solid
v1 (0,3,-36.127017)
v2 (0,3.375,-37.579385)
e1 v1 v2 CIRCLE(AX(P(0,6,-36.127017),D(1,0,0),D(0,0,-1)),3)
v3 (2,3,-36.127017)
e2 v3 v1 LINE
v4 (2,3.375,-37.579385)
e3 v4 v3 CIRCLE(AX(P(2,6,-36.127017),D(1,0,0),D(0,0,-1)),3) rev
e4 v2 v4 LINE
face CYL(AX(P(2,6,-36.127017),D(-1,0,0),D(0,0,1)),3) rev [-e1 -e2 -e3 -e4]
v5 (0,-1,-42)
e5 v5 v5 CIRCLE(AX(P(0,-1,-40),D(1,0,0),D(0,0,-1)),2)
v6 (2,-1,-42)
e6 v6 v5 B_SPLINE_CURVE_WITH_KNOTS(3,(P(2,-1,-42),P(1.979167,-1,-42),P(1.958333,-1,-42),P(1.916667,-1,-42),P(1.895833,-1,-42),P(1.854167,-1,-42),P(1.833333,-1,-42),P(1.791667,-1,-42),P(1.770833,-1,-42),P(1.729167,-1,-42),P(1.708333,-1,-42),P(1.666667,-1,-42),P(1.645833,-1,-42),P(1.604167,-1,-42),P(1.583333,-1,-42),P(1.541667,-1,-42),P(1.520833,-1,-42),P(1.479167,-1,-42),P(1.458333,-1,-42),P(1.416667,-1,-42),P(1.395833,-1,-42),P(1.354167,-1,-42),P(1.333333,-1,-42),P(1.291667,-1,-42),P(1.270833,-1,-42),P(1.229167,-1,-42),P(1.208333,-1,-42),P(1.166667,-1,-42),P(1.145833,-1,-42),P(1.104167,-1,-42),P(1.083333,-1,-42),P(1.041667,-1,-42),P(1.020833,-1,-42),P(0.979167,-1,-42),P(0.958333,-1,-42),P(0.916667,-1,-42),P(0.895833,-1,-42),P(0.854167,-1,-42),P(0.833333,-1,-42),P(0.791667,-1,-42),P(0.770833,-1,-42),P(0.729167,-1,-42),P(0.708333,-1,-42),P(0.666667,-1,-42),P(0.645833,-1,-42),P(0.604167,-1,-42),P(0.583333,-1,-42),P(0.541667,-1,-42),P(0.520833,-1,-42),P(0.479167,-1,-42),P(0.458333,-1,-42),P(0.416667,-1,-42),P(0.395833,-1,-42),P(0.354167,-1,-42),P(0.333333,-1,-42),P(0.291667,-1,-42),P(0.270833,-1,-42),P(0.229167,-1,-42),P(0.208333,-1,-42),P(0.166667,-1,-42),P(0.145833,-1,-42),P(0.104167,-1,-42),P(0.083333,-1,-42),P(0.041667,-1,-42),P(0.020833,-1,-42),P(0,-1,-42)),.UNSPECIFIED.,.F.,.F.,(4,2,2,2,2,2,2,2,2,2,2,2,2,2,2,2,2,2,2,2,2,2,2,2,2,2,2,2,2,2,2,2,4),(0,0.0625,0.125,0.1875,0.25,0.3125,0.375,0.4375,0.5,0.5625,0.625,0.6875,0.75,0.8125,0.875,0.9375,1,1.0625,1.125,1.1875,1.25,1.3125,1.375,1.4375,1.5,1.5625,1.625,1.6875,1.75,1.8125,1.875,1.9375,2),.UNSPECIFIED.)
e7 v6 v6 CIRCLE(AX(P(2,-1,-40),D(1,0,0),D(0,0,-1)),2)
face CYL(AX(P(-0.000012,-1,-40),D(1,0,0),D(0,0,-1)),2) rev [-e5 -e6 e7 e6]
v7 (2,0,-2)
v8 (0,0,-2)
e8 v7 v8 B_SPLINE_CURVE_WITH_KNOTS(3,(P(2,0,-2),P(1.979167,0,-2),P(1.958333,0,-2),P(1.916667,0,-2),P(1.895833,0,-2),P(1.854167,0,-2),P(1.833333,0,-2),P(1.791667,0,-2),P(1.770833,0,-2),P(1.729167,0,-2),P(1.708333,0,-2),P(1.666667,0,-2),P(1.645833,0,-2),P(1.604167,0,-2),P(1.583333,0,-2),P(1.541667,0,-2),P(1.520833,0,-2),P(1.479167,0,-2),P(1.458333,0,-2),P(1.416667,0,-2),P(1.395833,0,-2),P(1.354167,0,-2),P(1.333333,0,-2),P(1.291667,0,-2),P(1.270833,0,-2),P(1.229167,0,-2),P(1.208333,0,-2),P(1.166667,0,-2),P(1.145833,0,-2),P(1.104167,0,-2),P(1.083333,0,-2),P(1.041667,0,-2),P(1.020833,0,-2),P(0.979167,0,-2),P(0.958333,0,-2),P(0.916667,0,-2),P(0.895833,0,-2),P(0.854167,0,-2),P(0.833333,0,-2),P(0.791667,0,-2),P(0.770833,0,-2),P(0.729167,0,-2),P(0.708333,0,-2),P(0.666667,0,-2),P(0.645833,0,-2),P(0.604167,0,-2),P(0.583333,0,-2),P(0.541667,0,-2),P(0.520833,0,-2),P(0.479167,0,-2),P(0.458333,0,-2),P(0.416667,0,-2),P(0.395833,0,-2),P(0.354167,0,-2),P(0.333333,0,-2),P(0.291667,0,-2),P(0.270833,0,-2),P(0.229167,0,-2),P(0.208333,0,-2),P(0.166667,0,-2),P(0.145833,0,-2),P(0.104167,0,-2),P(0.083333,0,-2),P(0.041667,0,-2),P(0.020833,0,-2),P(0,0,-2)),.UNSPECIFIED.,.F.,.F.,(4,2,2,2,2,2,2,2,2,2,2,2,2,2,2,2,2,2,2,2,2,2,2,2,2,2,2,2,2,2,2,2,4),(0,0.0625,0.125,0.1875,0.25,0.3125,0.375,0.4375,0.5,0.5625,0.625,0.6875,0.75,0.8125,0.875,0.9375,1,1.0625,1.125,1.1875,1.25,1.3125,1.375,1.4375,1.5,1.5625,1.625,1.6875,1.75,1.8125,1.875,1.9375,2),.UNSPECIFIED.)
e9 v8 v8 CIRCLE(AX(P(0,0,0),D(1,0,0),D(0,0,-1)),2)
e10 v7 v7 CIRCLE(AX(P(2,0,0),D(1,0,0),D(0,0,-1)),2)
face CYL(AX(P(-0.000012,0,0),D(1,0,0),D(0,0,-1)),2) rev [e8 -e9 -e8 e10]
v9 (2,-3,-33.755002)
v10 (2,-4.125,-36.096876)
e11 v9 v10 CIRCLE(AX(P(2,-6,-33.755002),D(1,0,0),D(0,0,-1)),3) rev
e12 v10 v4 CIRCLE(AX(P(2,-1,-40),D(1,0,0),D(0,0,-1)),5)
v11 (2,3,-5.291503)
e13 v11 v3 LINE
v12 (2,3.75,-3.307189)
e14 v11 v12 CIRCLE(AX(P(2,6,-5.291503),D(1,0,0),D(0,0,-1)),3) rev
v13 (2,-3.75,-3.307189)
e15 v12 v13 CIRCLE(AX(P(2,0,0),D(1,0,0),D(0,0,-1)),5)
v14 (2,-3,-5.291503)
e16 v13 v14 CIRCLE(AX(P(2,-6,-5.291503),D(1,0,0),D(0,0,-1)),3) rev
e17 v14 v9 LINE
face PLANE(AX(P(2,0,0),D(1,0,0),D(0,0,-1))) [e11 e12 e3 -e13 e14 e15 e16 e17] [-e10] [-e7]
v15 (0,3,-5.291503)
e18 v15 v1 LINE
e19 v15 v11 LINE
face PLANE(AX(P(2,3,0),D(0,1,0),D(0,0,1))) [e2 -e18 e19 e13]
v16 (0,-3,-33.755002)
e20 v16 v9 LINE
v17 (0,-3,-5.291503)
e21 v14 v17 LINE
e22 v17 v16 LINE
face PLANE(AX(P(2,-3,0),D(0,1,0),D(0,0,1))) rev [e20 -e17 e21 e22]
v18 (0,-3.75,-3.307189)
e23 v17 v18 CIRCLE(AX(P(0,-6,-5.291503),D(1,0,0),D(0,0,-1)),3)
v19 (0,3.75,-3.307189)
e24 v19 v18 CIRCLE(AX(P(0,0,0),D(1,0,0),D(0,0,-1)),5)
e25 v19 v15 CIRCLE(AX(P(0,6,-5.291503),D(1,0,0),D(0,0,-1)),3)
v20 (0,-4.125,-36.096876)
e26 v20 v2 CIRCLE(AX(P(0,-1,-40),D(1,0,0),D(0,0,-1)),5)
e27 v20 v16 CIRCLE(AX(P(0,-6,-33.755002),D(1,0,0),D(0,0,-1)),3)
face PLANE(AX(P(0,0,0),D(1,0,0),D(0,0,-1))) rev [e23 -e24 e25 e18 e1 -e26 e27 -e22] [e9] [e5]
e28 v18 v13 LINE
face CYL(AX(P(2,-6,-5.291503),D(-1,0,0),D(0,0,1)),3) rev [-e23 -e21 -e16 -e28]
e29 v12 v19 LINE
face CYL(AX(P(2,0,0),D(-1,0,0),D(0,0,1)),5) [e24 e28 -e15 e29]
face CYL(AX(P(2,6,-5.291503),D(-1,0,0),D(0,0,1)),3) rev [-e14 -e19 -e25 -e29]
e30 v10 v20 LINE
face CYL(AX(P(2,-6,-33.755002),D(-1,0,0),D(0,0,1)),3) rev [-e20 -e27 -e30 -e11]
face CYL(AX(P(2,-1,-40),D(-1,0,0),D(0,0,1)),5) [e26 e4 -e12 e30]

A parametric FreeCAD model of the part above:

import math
import FreeCAD as App
import Part
import Sketcher
from FreeCAD import Vector


def edges_at(feature, points):
    """Names of the edges that pass closest to the given points."""
    edges = feature.Shape.Edges
    near = lambda p: min(range(len(edges)), key=lambda i: edges[i].distToShape(Part.Vertex(*p))[0])
    return sorted({f"Edge{near(p) + 1}" for p in points})

doc = App.newDocument("Part")
params = doc.addObject("Spreadsheet::Sheet", "Params")
for row, (alias, value) in enumerate([
    ("sketch1_radius", "5 mm"),
    ("sketch1_height", "33 mm"),
    ("pad1_length", "2 mm"),
    ("sketch2_diameter", "4 mm"),
    ("fillet_radius", "3 mm"),
], start=1):
    params.set(f"A{row}", alias)
    params.set(f"B{row}", "=" + value)
    params.setAlias(f"B{row}", alias)

body = doc.addObject("PartDesign::Body", "Body")

sketch1 = body.newObject("Sketcher::SketchObject", "Sketch")
sketch1.AttachmentSupport = (doc.getObject("YZ_Plane"), [""])
sketch1.MapMode = "FlatFace"
sketch1.addGeometry(Part.LineSegment(Vector(-3, -4, 0), Vector(-3, -35, 0)), False)
sketch1.addGeometry(Part.ArcOfCircle(Part.Circle(Vector(-1, -40, 0), Vector(0, 0, 1), 5), math.radians(114), math.radians(397)), False)
sketch1.addGeometry(Part.LineSegment(Vector(3, -37, 0), Vector(3, -4, 0)), False)
sketch1.addGeometry(Part.ArcOfCircle(Part.Circle(Vector(0, 0, 0), Vector(0, 0, 1), 5), math.radians(-53), math.radians(233)), False)
sketch1.addConstraint(Sketcher.Constraint("Coincident", 0, 2, 1, 1))
sketch1.addConstraint(Sketcher.Constraint("Coincident", 1, 2, 2, 1))
sketch1.addConstraint(Sketcher.Constraint("Coincident", 2, 2, 3, 1))
sketch1.addConstraint(Sketcher.Constraint("Coincident", 3, 2, 0, 1))
sketch1.addConstraint(Sketcher.Constraint("Vertical", 0))
sketch1.addConstraint(Sketcher.Constraint("Vertical", 2))
sketch1.addConstraint(Sketcher.Constraint("Coincident", 3, 3, -1, 1))
sketch1.addConstraint(Sketcher.Constraint("Equal", 1, 3))
sketch1.addConstraint(Sketcher.Constraint("Horizontal", 2, 2, 3, 2))
sketch1.addConstraint(Sketcher.Constraint("Radius", 1, 5.0))
sketch1.addConstraint(Sketcher.Constraint("DistanceY", 2, 1, 2, 2, 33.0))
sketch1.addConstraint(Sketcher.Constraint("DistanceX", 1, 3, -1, 1, 1.0))
sketch1.addConstraint(Sketcher.Constraint("DistanceY", 1, 3, -1, 1, 40.0))
sketch1.setExpression("Constraints[9]", "Params.sketch1_radius")
sketch1.setExpression("Constraints[10]", "Params.sketch1_height")
pad1 = body.newObject("PartDesign::Pad", "Pad")
pad1.Profile = sketch1
pad1.setExpression("Length", "Params.pad1_length")

sketch2 = body.newObject("Sketcher::SketchObject", "Sketch001")
sketch2.AttachmentSupport = (doc.getObject("YZ_Plane"), [""])
sketch2.MapMode = "FlatFace"
sketch2.addGeometry(Part.Circle(Vector(0, 0, 0), Vector(0, 0, 1), 2), False)
sketch2.addGeometry(Part.Circle(Vector(-1, -40, 0), Vector(0, 0, 1), 2), False)
sketch2.addConstraint(Sketcher.Constraint("Coincident", 0, 3, -1, 1))
sketch2.addConstraint(Sketcher.Constraint("Equal", 0, 1))
sketch2.addConstraint(Sketcher.Constraint("Diameter", 0, 4.0))
sketch2.addConstraint(Sketcher.Constraint("DistanceX", 1, 3, -1, 1, 1.0))
sketch2.addConstraint(Sketcher.Constraint("DistanceY", 1, 3, -1, 1, 40.0))
sketch2.setExpression("Constraints[2]", "Params.sketch2_diameter")
pocket1 = body.newObject("PartDesign::Pocket", "Pocket")
pocket1.Profile = sketch2
pocket1.Type = "ThroughAll"
pocket1.Midplane = True
doc.recompute()

fillet = body.newObject("PartDesign::Fillet", "Fillet")
fillet.Base = (pocket1, edges_at(pocket1, [
    (1, -3, -35.417),
    (1, 3, -37),
    (1, 3, -4),
    (1, -3, -4),
]))
fillet.setExpression("Radius", "Params.fillet_radius")

doc.recompute()
